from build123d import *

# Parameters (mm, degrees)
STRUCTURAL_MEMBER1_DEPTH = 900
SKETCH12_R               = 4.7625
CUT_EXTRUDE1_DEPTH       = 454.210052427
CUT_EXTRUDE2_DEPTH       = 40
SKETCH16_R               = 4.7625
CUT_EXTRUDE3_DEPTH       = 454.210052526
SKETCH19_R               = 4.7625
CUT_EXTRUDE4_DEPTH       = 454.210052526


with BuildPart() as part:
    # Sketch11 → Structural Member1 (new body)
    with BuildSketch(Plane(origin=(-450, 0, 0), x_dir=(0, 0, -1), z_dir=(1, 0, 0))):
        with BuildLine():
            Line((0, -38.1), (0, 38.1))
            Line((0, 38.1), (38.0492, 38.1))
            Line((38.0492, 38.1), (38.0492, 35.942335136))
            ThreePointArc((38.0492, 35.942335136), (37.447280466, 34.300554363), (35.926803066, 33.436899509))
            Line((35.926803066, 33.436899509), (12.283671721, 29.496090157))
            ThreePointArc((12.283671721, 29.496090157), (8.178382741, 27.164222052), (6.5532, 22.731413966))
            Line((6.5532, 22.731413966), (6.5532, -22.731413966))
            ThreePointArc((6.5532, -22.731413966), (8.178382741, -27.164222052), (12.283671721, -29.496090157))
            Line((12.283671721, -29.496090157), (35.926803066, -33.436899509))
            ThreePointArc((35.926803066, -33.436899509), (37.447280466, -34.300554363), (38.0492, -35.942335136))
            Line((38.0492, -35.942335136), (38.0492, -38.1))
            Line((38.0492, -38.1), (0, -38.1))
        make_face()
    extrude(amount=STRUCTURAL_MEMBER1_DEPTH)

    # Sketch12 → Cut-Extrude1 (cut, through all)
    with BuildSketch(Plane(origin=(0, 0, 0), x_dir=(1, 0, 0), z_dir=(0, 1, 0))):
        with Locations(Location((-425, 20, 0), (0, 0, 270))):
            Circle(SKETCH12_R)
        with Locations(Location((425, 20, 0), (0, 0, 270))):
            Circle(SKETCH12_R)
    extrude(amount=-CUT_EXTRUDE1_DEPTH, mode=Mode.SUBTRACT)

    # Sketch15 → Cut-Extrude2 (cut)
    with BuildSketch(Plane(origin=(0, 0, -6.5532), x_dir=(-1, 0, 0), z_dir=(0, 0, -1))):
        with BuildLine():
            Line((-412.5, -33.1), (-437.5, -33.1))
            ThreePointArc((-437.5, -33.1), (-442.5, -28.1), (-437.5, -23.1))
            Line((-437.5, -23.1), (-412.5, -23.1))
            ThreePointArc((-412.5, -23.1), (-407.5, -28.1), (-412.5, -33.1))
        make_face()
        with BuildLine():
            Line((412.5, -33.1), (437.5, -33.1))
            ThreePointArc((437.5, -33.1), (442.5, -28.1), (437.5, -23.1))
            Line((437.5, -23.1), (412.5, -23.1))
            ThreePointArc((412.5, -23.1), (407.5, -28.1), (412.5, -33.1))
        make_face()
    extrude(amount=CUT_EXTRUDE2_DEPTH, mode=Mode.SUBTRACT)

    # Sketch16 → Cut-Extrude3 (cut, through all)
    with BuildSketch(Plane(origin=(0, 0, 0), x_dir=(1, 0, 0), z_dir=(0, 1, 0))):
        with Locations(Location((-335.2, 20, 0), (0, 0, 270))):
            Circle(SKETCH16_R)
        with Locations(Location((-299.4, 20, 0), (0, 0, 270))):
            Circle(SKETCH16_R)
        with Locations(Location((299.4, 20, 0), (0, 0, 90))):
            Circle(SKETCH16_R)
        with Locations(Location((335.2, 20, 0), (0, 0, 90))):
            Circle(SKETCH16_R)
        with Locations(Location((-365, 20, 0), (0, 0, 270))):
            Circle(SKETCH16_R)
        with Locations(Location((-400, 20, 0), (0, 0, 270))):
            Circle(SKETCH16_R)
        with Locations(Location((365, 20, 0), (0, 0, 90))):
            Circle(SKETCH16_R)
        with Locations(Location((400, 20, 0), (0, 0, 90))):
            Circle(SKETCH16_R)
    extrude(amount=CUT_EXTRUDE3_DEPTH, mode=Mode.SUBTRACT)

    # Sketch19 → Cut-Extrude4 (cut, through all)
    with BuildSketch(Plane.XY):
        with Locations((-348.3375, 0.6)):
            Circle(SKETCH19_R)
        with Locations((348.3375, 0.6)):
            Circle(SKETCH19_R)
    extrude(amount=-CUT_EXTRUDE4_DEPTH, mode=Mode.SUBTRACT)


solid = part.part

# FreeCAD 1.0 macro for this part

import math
import FreeCAD as App
import Part
import Sketcher

V = App.Vector
Q = App.Units.Quantity

doc = App.newDocument("Part")
body = doc.addObject("PartDesign::Body", "Body")

# Sketch on YZ plane
sketch1 = body.newObject("Sketcher::SketchObject", "Sketch")
sketch1.AttachmentSupport = (doc.getObject("YZ_Plane"), [""])
sketch1.MapMode = "FlatFace"
sketch1.AttachmentOffset = App.Placement(V(0, 0, -450), App.Rotation())
sketch1.addGeometry(Part.LineSegment(V(38.1, 0, 0), V(-38.1, 0, 0)), False)
sketch1.addGeometry(Part.LineSegment(V(-38.1, 0, 0), V(-38.1, -38.0492, 0)), False)
sketch1.addGeometry(Part.LineSegment(V(-38.1, -38.0492, 0), V(-35.942335, -38.0492, 0)), False)
sketch1.addGeometry(Part.ArcOfCircle(Part.Circle(V(-35.942335, -35.5092, 0), V(0, 0, 1), 2.54), math.radians(-90), math.radians(-9.463)), False)
sketch1.addGeometry(Part.LineSegment(V(-33.4369, -35.926803, 0), V(-29.49609, -12.283672, 0)), False)
sketch1.addGeometry(Part.ArcOfCircle(Part.Circle(V(-22.731414, -13.4112, 0), V(0, 0, 1), 6.858), math.radians(90), math.radians(170.537)), False)
sketch1.addGeometry(Part.LineSegment(V(-22.731414, -6.5532, 0), V(22.731414, -6.5532, 0)), False)
sketch1.addGeometry(Part.ArcOfCircle(Part.Circle(V(22.731414, -13.4112, 0), V(0, 0, 1), 6.858), math.radians(9.463), math.radians(90)), False)
sketch1.addGeometry(Part.LineSegment(V(29.49609, -12.283672, 0), V(33.4369, -35.926803, 0)), False)
sketch1.addGeometry(Part.ArcOfCircle(Part.Circle(V(35.942335, -35.5092, 0), V(0, 0, 1), 2.54), math.radians(-170.537), math.radians(-90)), False)
sketch1.addGeometry(Part.LineSegment(V(35.942335, -38.0492, 0), V(38.1, -38.0492, 0)), False)
sketch1.addGeometry(Part.LineSegment(V(38.1, -38.0492, 0), V(38.1, 0, 0)), False)
sketch1.addConstraint(Sketcher.Constraint("Coincident", 0, 2, 1, 1))
sketch1.addConstraint(Sketcher.Constraint("Coincident", 1, 2, 2, 1))
sketch1.addConstraint(Sketcher.Constraint("Coincident", 2, 2, 3, 1))
sketch1.addConstraint(Sketcher.Constraint("Coincident", 3, 2, 4, 1))
sketch1.addConstraint(Sketcher.Constraint("Coincident", 4, 2, 5, 2))
sketch1.addConstraint(Sketcher.Constraint("Coincident", 5, 1, 6, 1))
sketch1.addConstraint(Sketcher.Constraint("Coincident", 6, 2, 7, 2))
sketch1.addConstraint(Sketcher.Constraint("Coincident", 7, 1, 8, 1))
sketch1.addConstraint(Sketcher.Constraint("Coincident", 8, 2, 9, 1))
sketch1.addConstraint(Sketcher.Constraint("Coincident", 9, 2, 10, 1))
sketch1.addConstraint(Sketcher.Constraint("Coincident", 10, 2, 11, 1))
sketch1.addConstraint(Sketcher.Constraint("Coincident", 11, 2, 0, 1))
sketch1.addConstraint(Sketcher.Constraint("Horizontal", 0))
sketch1.addConstraint(Sketcher.Constraint("Vertical", 1))
sketch1.addConstraint(Sketcher.Constraint("Horizontal", 2))
sketch1.addConstraint(Sketcher.Constraint("Horizontal", 6))
sketch1.addConstraint(Sketcher.Constraint("Horizontal", 10))
sketch1.addConstraint(Sketcher.Constraint("Vertical", 11))
sketch1.addConstraint(Sketcher.Constraint("PointOnObject", 0, 2, -1))
sketch1.addConstraint(Sketcher.Constraint("Radius", 3, Q("0.1 in")))
sketch1.addConstraint(Sketcher.Constraint("Radius", 9, Q("0.1 in")))
sketch1.addConstraint(Sketcher.Constraint("DistanceX", 0, 2, 0, 1, Q("3 in")))
sketch1.addConstraint(Sketcher.Constraint("Radius", 5, Q("0.27 in")))
sketch1.addConstraint(Sketcher.Constraint("Radius", 7, Q("0.27 in")))
sketch1.addConstraint(Sketcher.Constraint("DistanceX", 0, 2, -1, 1, Q("1.5 in")))
sketch1.addConstraint(Sketcher.Constraint("DistanceY", 1, 2, 9, 3, Q("0.1 in")))
sketch1.addConstraint(Sketcher.Constraint("DistanceY", 1, 2, 1, 1, Q("1.498 in")))
sketch1.addConstraint(Sketcher.Constraint("DistanceY", 3, 3, 5, 3, Q("0.87 in")))
sketch1.addConstraint(Sketcher.Constraint("DistanceX", 3, 2, -1, 1, Q("33.4369 mm")))
sketch1.addConstraint(Sketcher.Constraint("DistanceX", -1, 1, 8, 2, Q("33.4369 mm")))
sketch1.addConstraint(Sketcher.Constraint("DistanceX", 2, 1, 2, 2, Q("2.157665 mm")))
sketch1.addConstraint(Sketcher.Constraint("DistanceX", 6, 1, 6, 2, Q("45.462828 mm")))
sketch1.addConstraint(Sketcher.Constraint("DistanceX", 10, 1, 10, 2, Q("2.157665 mm")))
sketch1.addConstraint(Sketcher.Constraint("DistanceX", 4, 2, -1, 1, Q("29.49609 mm")))
sketch1.addConstraint(Sketcher.Constraint("DistanceY", 4, 2, -1, 1, Q("12.283672 mm")))
sketch1.addConstraint(Sketcher.Constraint("DistanceX", -1, 1, 7, 1, Q("29.49609 mm")))
sketch1.addConstraint(Sketcher.Constraint("DistanceY", 7, 1, -1, 1, Q("12.283672 mm")))
sketch1.addConstraint(Sketcher.Constraint("DistanceX", 3, 3, 5, 3, Q("13.210921 mm")))
sketch1.addConstraint(Sketcher.Constraint("DistanceX", 7, 3, 9, 3, Q("13.210921 mm")))
sketch1.addConstraint(Sketcher.Constraint("DistanceX", 3, 3, 5, 1, Q("13.210921 mm")))
pad1 = body.newObject("PartDesign::Pad", "Pad")
pad1.Profile = sketch1
pad1.Length = 900

# Sketch on XZ plane
sketch2 = body.newObject("Sketcher::SketchObject", "Sketch001")
sketch2.AttachmentSupport = (doc.getObject("XZ_Plane"), [""])
sketch2.MapMode = "FlatFace"
sketch2.addGeometry(Part.Circle(V(-425, -20, 0), V(0, 0, 1), 4.7625), False)
sketch2.addGeometry(Part.Circle(V(425, -20, 0), V(0, 0, 1), 4.7625), False)
sketch2.addConstraint(Sketcher.Constraint("Equal", 0, 1))
sketch2.addConstraint(Sketcher.Constraint("Symmetric", 0, 3, 1, 3, -2))
sketch2.addConstraint(Sketcher.Constraint("Diameter", 0, Q("0.375 in")))
sketch2.addConstraint(Sketcher.Constraint("DistanceX", 0, 3, -1, 1, Q("425 mm")))
sketch2.addConstraint(Sketcher.Constraint("DistanceY", 0, 3, -1, 1, Q("20 mm")))
pocket1 = body.newObject("PartDesign::Pocket", "Pocket")
pocket1.Profile = sketch2
pocket1.Type = "ThroughAll"
pocket1.Reversed = True

# Sketch on XY plane
sketch3 = body.newObject("Sketcher::SketchObject", "Sketch002")
sketch3.AttachmentSupport = (doc.getObject("XY_Plane"), [""])
sketch3.MapMode = "FlatFace"
sketch3.AttachmentOffset = App.Placement(V(0, 0, -0.258 * 25.4), App.Rotation())
sketch3.addGeometry(Part.LineSegment(V(437.5, -33.1, 0), V(412.5, -33.1, 0)), False)
sketch3.addGeometry(Part.ArcOfCircle(Part.Circle(V(412.5, -28.1, 0), V(0, 0, 1), 5), math.radians(90), math.radians(270)), False)
sketch3.addGeometry(Part.LineSegment(V(412.5, -23.1, 0), V(437.5, -23.1, 0)), False)
sketch3.addGeometry(Part.ArcOfCircle(Part.Circle(V(437.5, -28.1, 0), V(0, 0, 1), 5), math.radians(-90), math.radians(90)), False)
sketch3.addGeometry(Part.LineSegment(V(-412.5, -33.1, 0), V(-437.5, -33.1, 0)), False)
sketch3.addGeometry(Part.ArcOfCircle(Part.Circle(V(-437.5, -28.1, 0), V(0, 0, 1), 5), math.radians(90), math.radians(270)), False)
sketch3.addGeometry(Part.LineSegment(V(-437.5, -23.1, 0), V(-412.5, -23.1, 0)), False)
sketch3.addGeometry(Part.ArcOfCircle(Part.Circle(V(-412.5, -28.1, 0), V(0, 0, 1), 5), math.radians(-90), math.radians(90)), False)
sketch3.addConstraint(Sketcher.Constraint("Tangent", 0, 2, 1, 2))
sketch3.addConstraint(Sketcher.Constraint("Tangent", 1, 1, 2, 1))
sketch3.addConstraint(Sketcher.Constraint("Tangent", 2, 2, 3, 2))
sketch3.addConstraint(Sketcher.Constraint("Tangent", 3, 1, 0, 1))
sketch3.addConstraint(Sketcher.Constraint("Tangent", 4, 2, 5, 2))
sketch3.addConstraint(Sketcher.Constraint("Tangent", 5, 1, 6, 1))
sketch3.addConstraint(Sketcher.Constraint("Tangent", 6, 2, 7, 2))
sketch3.addConstraint(Sketcher.Constraint("Tangent", 7, 1, 4, 1))
sketch3.addConstraint(Sketcher.Constraint("Horizontal", 0))
sketch3.addConstraint(Sketcher.Constraint("Horizontal", 2))
sketch3.addConstraint(Sketcher.Constraint("Horizontal", 4))
sketch3.addConstraint(Sketcher.Constraint("Horizontal", 6))
sketch3.addConstraint(Sketcher.Constraint("Equal", 3, 5))
sketch3.addConstraint(Sketcher.Constraint("Symmetric", 3, 3, 5, 3, -2))
sketch3.addConstraint(Sketcher.Constraint("Equal", 2, 4))
sketch3.addConstraint(Sketcher.Constraint("Radius", 1, Q("5 mm")))
sketch3.addConstraint(Sketcher.Constraint("DistanceX", 0, 2, 0, 1, Q("25 mm")))
sketch3.addConstraint(Sketcher.Constraint("DistanceX", -1, 1, 1, 3, Q("412.5 mm")))
sketch3.addConstraint(Sketcher.Constraint("DistanceY", 1, 3, -1, 1, Q("28.1 mm")))
pocket2 = body.newObject("PartDesign::Pocket", "Pocket001")
pocket2.Profile = sketch3
pocket2.Length = 40

# Sketch on XZ plane
sketch4 = body.newObject("Sketcher::SketchObject", "Sketch003")
sketch4.AttachmentSupport = (doc.getObject("XZ_Plane"), [""])
sketch4.MapMode = "FlatFace"
sketch4.addGeometry(Part.Circle(V(-335.2, -20, 0), V(0, 0, 1), 4.7625), False)
sketch4.addGeometry(Part.Circle(V(-299.4, -20, 0), V(0, 0, 1), 4.7625), False)
sketch4.addGeometry(Part.Circle(V(299.4, -20, 0), V(0, 0, 1), 4.7625), False)
sketch4.addGeometry(Part.Circle(V(335.2, -20, 0), V(0, 0, 1), 4.7625), False)
sketch4.addGeometry(Part.Circle(V(-365, -20, 0), V(0, 0, 1), 4.7625), False)
sketch4.addGeometry(Part.Circle(V(-400, -20, 0), V(0, 0, 1), 4.7625), False)
sketch4.addGeometry(Part.Circle(V(365, -20, 0), V(0, 0, 1), 4.7625), False)
sketch4.addGeometry(Part.Circle(V(400, -20, 0), V(0, 0, 1), 4.7625), False)
sketch4.addConstraint(Sketcher.Constraint("Equal", 0, 1))
sketch4.addConstraint(Sketcher.Constraint("Equal", 1, 2))
sketch4.addConstraint(Sketcher.Constraint("Equal", 2, 3))
sketch4.addConstraint(Sketcher.Constraint("Equal", 3, 4))
sketch4.addConstraint(Sketcher.Constraint("Equal", 4, 5))
sketch4.addConstraint(Sketcher.Constraint("Equal", 5, 6))
sketch4.addConstraint(Sketcher.Constraint("Equal", 6, 7))
sketch4.addConstraint(Sketcher.Constraint("Symmetric", 1, 3, 2, 3, -2))
sketch4.addConstraint(Sketcher.Constraint("Symmetric", 0, 3, 3, 3, -2))
sketch4.addConstraint(Sketcher.Constraint("Symmetric", 4, 3, 6, 3, -2))
sketch4.addConstraint(Sketcher.Constraint("Symmetric", 5, 3, 7, 3, -2))
sketch4.addConstraint(Sketcher.Constraint("Horizontal", 0, 3, 1, 3))
sketch4.addConstraint(Sketcher.Constraint("Horizontal", 3, 3, 4, 3))
sketch4.addConstraint(Sketcher.Constraint("Horizontal", 4, 3, 5, 3))
sketch4.addConstraint(Sketcher.Constraint("Diameter", 0, Q("0.375 in")))
sketch4.addConstraint(Sketcher.Constraint("DistanceX", 0, 3, -1, 1, Q("335.2 mm")))
sketch4.addConstraint(Sketcher.Constraint("DistanceY", 0, 3, -1, 1, Q("20 mm")))
sketch4.addConstraint(Sketcher.Constraint("DistanceX", 1, 3, -1, 1, Q("299.4 mm")))
sketch4.addConstraint(Sketcher.Constraint("DistanceX", 4, 3, -1, 1, Q("365 mm")))
sketch4.addConstraint(Sketcher.Constraint("DistanceX", 5, 3, -1, 1, Q("400 mm")))
pocket3 = body.newObject("PartDesign::Pocket", "Pocket002")
pocket3.Profile = sketch4
pocket3.Type = "ThroughAll"

# Sketch on XY plane
sketch5 = body.newObject("Sketcher::SketchObject", "Sketch004")
sketch5.AttachmentSupport = (doc.getObject("XY_Plane"), [""])
sketch5.MapMode = "FlatFace"
sketch5.addGeometry(Part.Circle(V(-348.3375, 0.6, 0), V(0, 0, 1), 4.7625), False)
sketch5.addGeometry(Part.Circle(V(348.3375, 0.6, 0), V(0, 0, 1), 4.7625), False)
sketch5.addConstraint(Sketcher.Constraint("Equal", 0, 1))
sketch5.addConstraint(Sketcher.Constraint("Symmetric", 0, 3, 1, 3, -2))
sketch5.addConstraint(Sketcher.Constraint("Diameter", 0, Q("0.375 in")))
sketch5.addConstraint(Sketcher.Constraint("DistanceX", 0, 3, -1, 1, Q("348.3375 mm")))
sketch5.addConstraint(Sketcher.Constraint("DistanceY", -1, 1, 0, 3, Q("0.6 mm")))
pocket4 = body.newObject("PartDesign::Pocket", "Pocket003")
pocket4.Profile = sketch5
pocket4.Type = "ThroughAll"

doc.recompute()
